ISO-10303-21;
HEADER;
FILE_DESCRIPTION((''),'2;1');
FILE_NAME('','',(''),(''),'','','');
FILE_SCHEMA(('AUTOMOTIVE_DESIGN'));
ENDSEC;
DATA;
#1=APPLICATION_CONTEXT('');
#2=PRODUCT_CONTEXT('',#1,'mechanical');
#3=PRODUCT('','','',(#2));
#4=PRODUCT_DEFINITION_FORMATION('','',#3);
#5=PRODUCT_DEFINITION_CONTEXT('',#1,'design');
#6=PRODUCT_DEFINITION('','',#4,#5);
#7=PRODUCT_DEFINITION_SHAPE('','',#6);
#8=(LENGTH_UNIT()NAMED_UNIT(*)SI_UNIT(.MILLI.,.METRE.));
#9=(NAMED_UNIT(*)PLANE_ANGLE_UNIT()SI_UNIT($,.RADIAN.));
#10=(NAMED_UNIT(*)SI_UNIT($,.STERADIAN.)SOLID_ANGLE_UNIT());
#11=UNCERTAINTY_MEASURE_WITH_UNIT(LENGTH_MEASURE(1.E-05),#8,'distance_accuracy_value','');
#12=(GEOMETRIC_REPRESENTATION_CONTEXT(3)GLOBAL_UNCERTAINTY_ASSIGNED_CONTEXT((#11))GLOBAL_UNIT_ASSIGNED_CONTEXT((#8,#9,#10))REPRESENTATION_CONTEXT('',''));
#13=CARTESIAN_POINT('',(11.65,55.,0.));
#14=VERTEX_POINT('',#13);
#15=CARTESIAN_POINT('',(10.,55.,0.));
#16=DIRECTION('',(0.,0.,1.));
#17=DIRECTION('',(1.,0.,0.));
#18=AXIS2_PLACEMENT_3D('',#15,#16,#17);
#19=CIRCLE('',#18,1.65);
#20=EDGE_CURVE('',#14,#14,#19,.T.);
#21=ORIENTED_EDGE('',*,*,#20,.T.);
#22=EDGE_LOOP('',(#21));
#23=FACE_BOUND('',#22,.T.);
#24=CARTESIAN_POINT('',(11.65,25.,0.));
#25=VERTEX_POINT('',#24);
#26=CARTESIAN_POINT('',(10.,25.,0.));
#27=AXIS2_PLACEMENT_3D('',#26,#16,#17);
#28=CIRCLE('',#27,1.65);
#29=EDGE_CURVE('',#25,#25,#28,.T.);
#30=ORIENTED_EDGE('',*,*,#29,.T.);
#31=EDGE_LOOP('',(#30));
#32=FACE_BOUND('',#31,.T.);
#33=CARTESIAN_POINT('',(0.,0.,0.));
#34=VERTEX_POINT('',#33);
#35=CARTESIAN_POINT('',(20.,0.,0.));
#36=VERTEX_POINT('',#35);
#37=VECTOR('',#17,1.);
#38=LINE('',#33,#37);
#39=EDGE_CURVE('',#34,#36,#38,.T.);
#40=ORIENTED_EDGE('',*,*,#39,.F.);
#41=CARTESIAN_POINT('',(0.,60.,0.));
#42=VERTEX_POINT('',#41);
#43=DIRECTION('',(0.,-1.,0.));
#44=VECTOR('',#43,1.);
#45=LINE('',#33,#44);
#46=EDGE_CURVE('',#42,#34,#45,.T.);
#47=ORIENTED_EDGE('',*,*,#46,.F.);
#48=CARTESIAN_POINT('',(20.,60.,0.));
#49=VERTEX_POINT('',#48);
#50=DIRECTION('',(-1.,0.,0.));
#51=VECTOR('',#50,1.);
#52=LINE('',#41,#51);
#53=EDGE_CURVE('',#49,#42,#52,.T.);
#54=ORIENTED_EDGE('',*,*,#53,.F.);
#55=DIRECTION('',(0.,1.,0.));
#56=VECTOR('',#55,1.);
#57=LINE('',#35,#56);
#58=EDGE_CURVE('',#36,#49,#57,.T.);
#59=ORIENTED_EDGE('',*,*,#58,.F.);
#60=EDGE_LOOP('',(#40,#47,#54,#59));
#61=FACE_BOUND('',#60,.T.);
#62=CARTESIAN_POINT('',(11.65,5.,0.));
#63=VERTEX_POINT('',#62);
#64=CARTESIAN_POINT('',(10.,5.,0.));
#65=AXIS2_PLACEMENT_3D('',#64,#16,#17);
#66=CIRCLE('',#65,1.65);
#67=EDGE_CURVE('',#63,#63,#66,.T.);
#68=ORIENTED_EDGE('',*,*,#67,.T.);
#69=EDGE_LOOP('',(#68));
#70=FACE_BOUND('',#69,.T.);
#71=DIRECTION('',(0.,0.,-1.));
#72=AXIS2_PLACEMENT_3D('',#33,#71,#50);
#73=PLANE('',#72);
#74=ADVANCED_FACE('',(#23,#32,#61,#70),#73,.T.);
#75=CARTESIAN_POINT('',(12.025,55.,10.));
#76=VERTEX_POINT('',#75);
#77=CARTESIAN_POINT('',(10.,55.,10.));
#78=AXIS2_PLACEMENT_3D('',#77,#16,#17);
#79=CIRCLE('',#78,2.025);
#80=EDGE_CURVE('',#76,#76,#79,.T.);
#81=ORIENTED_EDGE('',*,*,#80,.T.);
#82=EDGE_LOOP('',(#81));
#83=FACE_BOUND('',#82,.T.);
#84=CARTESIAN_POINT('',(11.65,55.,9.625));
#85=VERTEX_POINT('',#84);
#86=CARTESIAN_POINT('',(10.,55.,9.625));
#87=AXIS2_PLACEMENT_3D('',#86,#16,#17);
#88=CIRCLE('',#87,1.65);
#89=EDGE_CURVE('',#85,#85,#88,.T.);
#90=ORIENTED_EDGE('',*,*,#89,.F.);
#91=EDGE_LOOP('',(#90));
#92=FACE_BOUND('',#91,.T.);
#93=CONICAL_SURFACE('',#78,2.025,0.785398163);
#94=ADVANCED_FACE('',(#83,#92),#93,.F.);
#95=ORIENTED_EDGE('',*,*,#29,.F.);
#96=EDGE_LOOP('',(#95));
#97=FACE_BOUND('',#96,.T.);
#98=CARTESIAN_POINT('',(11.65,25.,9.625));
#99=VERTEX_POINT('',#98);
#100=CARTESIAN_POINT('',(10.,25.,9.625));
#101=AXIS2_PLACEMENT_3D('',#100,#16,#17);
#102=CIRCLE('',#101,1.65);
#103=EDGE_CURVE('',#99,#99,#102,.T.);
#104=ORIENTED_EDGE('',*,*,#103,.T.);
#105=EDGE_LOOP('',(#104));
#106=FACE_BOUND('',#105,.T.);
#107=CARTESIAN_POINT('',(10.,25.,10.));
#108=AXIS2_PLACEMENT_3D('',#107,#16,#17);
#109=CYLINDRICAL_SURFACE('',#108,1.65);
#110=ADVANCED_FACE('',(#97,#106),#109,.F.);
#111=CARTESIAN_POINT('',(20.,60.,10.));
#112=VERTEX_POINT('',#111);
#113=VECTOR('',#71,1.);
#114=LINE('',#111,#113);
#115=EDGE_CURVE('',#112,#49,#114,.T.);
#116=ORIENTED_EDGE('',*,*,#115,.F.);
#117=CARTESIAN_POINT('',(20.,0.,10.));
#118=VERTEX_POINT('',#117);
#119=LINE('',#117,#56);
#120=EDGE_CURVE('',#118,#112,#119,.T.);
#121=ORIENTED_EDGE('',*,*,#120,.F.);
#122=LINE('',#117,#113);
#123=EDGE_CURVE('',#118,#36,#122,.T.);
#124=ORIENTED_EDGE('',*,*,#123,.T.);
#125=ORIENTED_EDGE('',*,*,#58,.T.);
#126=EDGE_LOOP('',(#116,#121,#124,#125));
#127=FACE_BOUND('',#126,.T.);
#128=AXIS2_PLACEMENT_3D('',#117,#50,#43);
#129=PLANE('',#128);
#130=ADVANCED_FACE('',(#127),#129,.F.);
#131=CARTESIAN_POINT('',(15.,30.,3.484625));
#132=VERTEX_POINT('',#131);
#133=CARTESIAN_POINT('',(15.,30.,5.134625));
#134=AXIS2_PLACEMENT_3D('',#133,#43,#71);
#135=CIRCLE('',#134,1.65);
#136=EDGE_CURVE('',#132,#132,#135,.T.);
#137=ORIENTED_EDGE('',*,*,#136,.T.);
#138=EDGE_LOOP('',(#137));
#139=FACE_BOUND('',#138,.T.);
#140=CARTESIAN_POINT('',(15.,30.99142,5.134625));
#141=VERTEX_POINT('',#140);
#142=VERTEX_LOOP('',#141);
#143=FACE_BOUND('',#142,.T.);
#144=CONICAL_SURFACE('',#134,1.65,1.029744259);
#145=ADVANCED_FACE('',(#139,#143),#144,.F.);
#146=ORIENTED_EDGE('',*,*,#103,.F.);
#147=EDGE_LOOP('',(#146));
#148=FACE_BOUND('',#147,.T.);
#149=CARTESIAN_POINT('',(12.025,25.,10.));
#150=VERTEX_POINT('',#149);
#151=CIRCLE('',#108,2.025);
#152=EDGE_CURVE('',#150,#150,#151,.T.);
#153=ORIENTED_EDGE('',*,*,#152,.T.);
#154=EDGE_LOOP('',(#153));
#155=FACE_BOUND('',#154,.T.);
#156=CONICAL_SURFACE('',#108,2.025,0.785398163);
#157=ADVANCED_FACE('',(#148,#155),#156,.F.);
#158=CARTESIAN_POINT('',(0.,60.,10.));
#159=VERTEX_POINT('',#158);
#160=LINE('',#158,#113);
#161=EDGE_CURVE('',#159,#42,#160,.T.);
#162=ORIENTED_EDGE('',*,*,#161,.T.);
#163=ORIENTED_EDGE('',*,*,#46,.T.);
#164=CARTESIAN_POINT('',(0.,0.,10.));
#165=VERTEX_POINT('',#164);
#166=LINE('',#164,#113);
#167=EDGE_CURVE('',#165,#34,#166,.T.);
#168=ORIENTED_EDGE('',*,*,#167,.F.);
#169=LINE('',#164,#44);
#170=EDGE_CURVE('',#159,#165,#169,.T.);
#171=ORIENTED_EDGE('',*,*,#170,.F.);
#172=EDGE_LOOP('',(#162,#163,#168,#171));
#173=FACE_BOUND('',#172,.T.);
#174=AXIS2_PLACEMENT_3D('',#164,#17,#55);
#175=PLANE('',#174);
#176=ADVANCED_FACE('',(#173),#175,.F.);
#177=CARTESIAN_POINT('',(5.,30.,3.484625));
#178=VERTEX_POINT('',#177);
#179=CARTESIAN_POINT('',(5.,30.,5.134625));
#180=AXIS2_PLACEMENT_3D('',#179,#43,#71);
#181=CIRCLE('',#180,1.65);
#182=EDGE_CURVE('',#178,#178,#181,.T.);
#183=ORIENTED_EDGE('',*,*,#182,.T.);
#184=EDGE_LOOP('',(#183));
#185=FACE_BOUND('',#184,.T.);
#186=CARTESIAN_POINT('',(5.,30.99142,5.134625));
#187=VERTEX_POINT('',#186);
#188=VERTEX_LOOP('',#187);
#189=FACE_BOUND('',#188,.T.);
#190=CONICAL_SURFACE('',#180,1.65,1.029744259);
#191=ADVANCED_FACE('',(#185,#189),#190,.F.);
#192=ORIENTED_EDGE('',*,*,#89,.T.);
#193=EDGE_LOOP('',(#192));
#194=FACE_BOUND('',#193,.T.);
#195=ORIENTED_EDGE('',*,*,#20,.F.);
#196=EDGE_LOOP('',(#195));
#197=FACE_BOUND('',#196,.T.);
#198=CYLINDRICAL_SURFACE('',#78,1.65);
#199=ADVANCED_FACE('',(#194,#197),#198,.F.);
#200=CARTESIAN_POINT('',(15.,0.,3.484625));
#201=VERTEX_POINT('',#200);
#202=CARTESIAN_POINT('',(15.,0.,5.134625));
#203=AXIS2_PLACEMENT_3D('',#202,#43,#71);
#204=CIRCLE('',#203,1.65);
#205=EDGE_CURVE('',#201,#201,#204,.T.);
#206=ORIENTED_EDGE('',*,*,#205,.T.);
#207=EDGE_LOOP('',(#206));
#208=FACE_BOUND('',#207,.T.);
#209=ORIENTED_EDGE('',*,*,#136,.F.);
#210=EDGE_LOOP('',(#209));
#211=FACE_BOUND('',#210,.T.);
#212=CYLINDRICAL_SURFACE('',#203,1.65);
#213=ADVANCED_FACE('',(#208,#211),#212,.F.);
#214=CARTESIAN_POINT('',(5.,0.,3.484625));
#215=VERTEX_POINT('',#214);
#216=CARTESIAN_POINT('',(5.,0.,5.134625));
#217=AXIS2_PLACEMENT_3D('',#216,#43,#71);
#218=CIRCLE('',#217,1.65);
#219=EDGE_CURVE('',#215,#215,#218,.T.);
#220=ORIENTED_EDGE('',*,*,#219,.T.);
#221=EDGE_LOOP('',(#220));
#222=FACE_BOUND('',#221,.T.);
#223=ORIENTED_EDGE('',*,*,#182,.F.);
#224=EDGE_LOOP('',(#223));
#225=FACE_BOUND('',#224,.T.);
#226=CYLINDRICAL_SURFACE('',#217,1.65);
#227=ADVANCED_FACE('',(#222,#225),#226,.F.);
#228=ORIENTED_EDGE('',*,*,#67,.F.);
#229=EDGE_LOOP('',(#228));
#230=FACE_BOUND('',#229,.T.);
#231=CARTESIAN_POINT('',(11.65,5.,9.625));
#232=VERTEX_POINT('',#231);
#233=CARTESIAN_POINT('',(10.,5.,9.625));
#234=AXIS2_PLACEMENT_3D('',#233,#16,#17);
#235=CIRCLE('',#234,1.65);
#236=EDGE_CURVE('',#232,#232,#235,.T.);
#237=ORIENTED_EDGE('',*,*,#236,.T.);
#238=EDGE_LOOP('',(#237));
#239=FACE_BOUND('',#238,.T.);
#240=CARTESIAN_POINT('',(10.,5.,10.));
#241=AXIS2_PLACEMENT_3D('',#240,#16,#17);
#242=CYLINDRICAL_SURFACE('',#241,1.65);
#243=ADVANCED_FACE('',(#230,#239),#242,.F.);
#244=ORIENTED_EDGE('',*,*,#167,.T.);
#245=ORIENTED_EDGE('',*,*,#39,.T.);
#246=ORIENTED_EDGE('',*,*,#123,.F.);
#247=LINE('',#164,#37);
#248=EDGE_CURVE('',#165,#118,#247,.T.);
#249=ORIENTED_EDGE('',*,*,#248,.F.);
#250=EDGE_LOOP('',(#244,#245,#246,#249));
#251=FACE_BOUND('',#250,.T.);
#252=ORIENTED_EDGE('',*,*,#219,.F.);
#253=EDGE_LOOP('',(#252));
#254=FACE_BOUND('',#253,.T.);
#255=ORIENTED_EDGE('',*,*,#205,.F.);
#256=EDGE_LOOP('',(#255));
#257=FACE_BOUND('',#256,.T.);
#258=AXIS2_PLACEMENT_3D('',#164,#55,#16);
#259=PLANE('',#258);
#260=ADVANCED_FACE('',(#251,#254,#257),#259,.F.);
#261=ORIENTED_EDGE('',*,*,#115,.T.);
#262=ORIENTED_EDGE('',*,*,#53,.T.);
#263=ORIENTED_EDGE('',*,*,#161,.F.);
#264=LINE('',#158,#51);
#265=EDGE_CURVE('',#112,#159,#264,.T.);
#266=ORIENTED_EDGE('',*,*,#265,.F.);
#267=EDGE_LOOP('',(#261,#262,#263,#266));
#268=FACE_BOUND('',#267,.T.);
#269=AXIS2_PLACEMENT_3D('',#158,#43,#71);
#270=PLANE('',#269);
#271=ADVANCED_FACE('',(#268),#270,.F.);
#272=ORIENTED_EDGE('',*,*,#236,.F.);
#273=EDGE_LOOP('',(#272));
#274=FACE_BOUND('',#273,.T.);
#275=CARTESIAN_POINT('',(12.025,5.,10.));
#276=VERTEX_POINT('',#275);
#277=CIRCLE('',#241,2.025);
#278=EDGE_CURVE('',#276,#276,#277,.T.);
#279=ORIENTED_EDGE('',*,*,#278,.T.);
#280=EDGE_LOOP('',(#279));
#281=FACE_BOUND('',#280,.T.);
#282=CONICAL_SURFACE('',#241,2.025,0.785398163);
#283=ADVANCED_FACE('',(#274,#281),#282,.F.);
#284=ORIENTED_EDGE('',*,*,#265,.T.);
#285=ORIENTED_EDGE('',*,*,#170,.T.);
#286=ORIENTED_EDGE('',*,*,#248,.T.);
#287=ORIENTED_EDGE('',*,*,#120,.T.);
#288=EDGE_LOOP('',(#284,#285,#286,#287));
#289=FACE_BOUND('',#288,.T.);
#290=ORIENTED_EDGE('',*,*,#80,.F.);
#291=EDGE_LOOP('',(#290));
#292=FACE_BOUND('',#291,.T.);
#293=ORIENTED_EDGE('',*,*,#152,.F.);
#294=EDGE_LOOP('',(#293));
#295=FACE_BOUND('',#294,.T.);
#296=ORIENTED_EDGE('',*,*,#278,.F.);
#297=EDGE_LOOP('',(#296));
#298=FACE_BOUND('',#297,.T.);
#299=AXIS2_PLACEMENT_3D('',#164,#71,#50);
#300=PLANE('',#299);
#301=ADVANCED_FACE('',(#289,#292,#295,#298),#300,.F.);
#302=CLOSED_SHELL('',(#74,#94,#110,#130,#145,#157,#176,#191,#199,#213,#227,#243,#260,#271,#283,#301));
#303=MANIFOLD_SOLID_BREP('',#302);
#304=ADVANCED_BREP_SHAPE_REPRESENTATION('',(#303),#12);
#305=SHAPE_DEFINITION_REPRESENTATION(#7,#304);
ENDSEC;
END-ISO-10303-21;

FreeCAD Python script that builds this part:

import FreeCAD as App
import Part
import Sketcher


def add_polygon(sketch, points):
    """Adds a closed chain of lines whose ends are joined by coincident constraints."""
    first, n = sketch.GeometryCount, len(points)
    for a, b in zip(points, points[1:] + points[:1]):
        sketch.addGeometry(Part.LineSegment(App.Vector(*a, 0), App.Vector(*b, 0)), False)
    for i in range(n):
        sketch.addConstraint(Sketcher.Constraint("Coincident", first + i, 2, first + (i + 1) % n, 1))

doc = App.newDocument("Part")
params = doc.addObject("Spreadsheet::Sheet", "Params")
for row, (alias, value) in enumerate([
    ("sketch1_width", "20 mm"),
    ("sketch1_height", "60 mm"),
    ("pad1_length", "10 mm"),
    ("sketch2_diameter", "3.3 mm"),
    ("hole_diameter", "3.3 mm"),
    ("hole_csink_diameter", "4.05 mm"),
    ("sketch3_diameter", "3.3 mm"),
    ("hole2_diameter", "3.3 mm"),
    ("hole2_depth", "30 mm"),
], start=1):
    params.set(f"A{row}", alias)
    params.set(f"B{row}", "=" + value)
    params.setAlias(f"B{row}", alias)

body = doc.addObject("PartDesign::Body", "Body")

sketch1 = body.newObject("Sketcher::SketchObject", "Sketch")
sketch1.AttachmentSupport = (doc.getObject("XY_Plane"), [""])
sketch1.MapMode = "FlatFace"
add_polygon(sketch1, [(0, 60), (0, 0), (20, 0), (20, 60)])
sketch1.addConstraint([
    Sketcher.Constraint("Vertical", 0),
    Sketcher.Constraint("Horizontal", 1),
    Sketcher.Constraint("Vertical", 2),
    Sketcher.Constraint("Horizontal", 3),
    Sketcher.Constraint("Coincident", 0, 2, -1, 1),
    Sketcher.Constraint("DistanceX", 1, 1, 1, 2, 20.0),
    Sketcher.Constraint("DistanceY", 0, 2, 0, 1, 60.0),
])
sketch1.setExpression("Constraints[9]", "Params.sketch1_width")
sketch1.setExpression("Constraints[10]", "Params.sketch1_height")
pad1 = body.newObject("PartDesign::Pad", "Pad")
pad1.Profile = sketch1
pad1.setExpression("Length", "Params.pad1_length")

sketch2 = body.newObject("Sketcher::SketchObject", "Sketch001")
sketch2.AttachmentSupport = (doc.getObject("XY_Plane"), [""])
sketch2.MapMode = "FlatFace"
sketch2.AttachmentOffset = App.Placement(App.Vector(0, 0, 10), App.Rotation())
sketch2.addGeometry([
    Part.Circle(App.Vector(10, 55, 0), App.Vector(0, 0, 1), 1.6),
    Part.Circle(App.Vector(10, 25, 0), App.Vector(0, 0, 1), 1.6),
    Part.Circle(App.Vector(10, 5, 0), App.Vector(0, 0, 1), 1.6),
], False)
sketch2.addConstraint([
    Sketcher.Constraint("Equal", 0, 1),
    Sketcher.Constraint("Equal", 1, 2),
    Sketcher.Constraint("Vertical", 0, 3, 1, 3),
    Sketcher.Constraint("Vertical", 1, 3, 2, 3),
    Sketcher.Constraint("Diameter", 0, 3.3),
    Sketcher.Constraint("DistanceX", -1, 1, 0, 3, 10.0),
    Sketcher.Constraint("DistanceY", -1, 1, 0, 3, 55.0),
    Sketcher.Constraint("DistanceY", -1, 1, 1, 3, 25.0),
    Sketcher.Constraint("DistanceY", -1, 1, 2, 3, 5.0),
])
sketch2.setExpression("Constraints[4]", "Params.sketch2_diameter")
doc.recompute()
hole = body.newObject("PartDesign::Hole", "Hole")
hole.Profile = sketch2
hole.ThreadType = "None"
hole.setExpression("Diameter", "Params.hole_diameter")
hole.DepthType = "ThroughAll"
hole.HoleCutType = "Countersink"
hole.setExpression("HoleCutDiameter", "Params.hole_csink_diameter")
hole.HoleCutCountersinkAngle = 90

sketch3 = body.newObject("Sketcher::SketchObject", "Sketch002")
sketch3.AttachmentSupport = (doc.getObject("XZ_Plane"), [""])
sketch3.MapMode = "FlatFace"
sketch3.addGeometry([
    Part.Circle(App.Vector(15, 5.1, 0), App.Vector(0, 0, 1), 1.6),
    Part.Circle(App.Vector(5, 5.1, 0), App.Vector(0, 0, 1), 1.6),
], False)
sketch3.addConstraint([
    Sketcher.Constraint("Equal", 0, 1),
    Sketcher.Constraint("Horizontal", 0, 3, 1, 3),
    Sketcher.Constraint("Diameter", 0, 3.3),
    Sketcher.Constraint("DistanceX", -1, 1, 0, 3, 15.0),
    Sketcher.Constraint("DistanceX", -1, 1, 1, 3, 5.0),
    Sketcher.Constraint("DistanceY", -1, 1, 0, 3, 5.134625),
])
sketch3.setExpression("Constraints[2]", "Params.sketch3_diameter")
doc.recompute()
hole2 = body.newObject("PartDesign::Hole", "Hole001")
hole2.Profile = sketch3
hole2.ThreadType = "None"
hole2.setExpression("Diameter", "Params.hole2_diameter")
hole2.DepthType = "Dimension"
hole2.setExpression("Depth", "Params.hole2_depth")
hole2.DrillPoint = "Angled"
hole2.DrillPointAngle = 118

doc.recompute()
